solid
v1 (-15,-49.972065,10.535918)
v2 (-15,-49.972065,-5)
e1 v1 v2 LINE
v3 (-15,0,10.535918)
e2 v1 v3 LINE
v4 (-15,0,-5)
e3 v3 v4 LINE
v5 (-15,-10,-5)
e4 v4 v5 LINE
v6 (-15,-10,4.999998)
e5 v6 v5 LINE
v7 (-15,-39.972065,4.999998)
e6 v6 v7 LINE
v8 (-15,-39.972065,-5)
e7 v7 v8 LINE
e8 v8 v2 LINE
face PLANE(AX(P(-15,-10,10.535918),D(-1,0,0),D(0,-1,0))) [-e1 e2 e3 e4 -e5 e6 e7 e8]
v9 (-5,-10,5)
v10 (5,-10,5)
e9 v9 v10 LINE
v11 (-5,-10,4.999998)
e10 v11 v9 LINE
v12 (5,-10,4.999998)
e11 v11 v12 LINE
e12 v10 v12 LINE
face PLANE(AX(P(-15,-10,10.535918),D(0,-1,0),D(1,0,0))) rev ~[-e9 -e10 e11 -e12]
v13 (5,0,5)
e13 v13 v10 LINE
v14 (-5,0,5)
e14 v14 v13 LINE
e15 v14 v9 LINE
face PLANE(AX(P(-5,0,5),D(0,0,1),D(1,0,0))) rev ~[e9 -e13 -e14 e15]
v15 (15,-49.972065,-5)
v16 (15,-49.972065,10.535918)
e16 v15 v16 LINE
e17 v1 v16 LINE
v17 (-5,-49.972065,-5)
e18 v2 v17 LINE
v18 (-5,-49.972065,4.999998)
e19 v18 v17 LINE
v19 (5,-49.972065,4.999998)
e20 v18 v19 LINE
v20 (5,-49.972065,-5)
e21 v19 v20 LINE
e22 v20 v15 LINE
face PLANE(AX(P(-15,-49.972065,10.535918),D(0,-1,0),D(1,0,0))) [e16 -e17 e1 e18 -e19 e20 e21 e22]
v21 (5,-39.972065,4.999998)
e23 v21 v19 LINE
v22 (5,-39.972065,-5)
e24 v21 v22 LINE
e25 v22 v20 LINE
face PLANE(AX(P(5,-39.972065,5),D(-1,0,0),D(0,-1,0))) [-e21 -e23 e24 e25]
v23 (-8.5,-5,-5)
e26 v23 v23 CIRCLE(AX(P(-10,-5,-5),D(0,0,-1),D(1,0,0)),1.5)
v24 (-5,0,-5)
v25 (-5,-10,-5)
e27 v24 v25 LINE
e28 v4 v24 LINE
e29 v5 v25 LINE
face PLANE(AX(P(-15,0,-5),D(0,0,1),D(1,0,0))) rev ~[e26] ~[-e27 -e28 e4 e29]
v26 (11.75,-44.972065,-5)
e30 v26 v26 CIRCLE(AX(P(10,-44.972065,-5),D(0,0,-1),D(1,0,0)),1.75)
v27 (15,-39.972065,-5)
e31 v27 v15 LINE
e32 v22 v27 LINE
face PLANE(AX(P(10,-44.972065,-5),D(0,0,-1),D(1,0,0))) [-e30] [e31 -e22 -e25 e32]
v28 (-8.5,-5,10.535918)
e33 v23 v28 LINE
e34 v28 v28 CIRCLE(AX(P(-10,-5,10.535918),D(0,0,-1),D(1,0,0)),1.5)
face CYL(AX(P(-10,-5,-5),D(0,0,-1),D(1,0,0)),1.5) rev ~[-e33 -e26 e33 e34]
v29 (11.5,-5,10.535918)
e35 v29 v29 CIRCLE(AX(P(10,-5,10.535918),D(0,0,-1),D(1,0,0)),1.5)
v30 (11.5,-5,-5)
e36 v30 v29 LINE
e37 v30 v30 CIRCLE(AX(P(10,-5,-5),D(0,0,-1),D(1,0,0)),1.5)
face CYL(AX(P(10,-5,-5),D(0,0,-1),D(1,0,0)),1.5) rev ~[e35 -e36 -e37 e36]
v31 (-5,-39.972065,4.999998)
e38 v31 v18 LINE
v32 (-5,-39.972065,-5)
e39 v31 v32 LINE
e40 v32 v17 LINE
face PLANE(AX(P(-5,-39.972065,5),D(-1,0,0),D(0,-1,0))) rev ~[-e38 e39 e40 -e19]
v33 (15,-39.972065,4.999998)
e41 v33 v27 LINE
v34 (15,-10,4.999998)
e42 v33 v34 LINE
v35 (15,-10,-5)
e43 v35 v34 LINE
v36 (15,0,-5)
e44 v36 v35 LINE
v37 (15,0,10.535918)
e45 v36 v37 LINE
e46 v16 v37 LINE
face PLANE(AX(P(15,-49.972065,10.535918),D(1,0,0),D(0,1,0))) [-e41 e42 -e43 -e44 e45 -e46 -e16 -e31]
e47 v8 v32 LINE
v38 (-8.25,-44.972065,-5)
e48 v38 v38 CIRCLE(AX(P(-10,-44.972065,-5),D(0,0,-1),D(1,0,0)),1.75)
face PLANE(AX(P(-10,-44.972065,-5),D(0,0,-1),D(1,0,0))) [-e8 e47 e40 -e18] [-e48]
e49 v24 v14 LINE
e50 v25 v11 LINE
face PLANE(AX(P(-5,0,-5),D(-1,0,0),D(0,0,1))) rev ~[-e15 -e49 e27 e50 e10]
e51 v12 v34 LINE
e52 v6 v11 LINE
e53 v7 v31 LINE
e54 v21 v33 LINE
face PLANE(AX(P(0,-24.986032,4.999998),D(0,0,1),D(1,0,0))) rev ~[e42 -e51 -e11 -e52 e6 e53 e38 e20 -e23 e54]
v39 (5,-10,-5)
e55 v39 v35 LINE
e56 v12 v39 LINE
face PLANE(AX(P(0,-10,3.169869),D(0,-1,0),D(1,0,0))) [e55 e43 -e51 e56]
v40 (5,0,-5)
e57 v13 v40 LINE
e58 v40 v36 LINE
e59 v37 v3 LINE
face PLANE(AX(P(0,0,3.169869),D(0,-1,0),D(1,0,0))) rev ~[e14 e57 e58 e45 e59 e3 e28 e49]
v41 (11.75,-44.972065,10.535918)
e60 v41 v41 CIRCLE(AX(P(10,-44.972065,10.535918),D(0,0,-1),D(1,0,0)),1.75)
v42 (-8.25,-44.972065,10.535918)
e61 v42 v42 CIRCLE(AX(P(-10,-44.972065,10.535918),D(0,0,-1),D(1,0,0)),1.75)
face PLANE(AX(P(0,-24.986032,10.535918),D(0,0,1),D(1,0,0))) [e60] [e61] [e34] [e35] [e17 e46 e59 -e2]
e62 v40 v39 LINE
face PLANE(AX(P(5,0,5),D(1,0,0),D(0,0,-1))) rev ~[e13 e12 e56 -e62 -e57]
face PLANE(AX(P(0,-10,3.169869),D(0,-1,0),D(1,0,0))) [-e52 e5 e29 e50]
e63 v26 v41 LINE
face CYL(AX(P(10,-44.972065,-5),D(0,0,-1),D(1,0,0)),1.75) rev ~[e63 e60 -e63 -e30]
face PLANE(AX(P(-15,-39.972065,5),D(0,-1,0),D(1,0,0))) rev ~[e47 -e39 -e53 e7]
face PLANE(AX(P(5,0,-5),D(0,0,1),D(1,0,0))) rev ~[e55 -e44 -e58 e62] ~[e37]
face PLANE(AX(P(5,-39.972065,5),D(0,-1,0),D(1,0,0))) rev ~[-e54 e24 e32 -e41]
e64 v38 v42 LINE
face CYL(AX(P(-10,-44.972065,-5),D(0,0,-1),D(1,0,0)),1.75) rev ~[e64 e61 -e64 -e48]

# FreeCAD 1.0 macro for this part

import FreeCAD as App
import Part
import Sketcher

V = App.Vector


def add_polygon(sketch, points):
    """Adds a closed chain of lines whose ends are joined by coincident constraints."""
    first, n = sketch.GeometryCount, len(points)
    for a, b in zip(points, points[1:] + points[:1]):
        sketch.addGeometry(Part.LineSegment(App.Vector(*a, 0), App.Vector(*b, 0)), False)
    for i in range(n):
        sketch.addConstraint(Sketcher.Constraint("Coincident", first + i, 2, first + (i + 1) % n, 1))

doc = App.newDocument("Part")
params = doc.addObject("Spreadsheet::Sheet", "Params")
for row, (alias, value) in enumerate([
    ("sketch1_width", "10 mm"),
    ("pad1_length", "10 mm"),
    ("sketch2_diameter", "3 mm"),
    ("pocket1_length", "16 mm"),
    ("sketch3_diameter", "3 mm"),
    ("sketch3_width", "30 mm"),
    ("pad2_length", "5.53592 mm"),
    ("sketch4_width", "10 mm"),
    ("pad3_length", "10 mm"),
    ("sketch5_diameter", "3.5 mm"),
    ("pocket2_length", "25 mm"),
], start=1):
    params.set(f"A{row}", alias)
    params.set(f"B{row}", "=" + value)
    params.setAlias(f"B{row}", alias)

body = doc.addObject("PartDesign::Body", "Body")

# Sketch on XZ plane
sketch1 = body.newObject("Sketcher::SketchObject", "Sketch")
sketch1.AttachmentSupport = (doc.getObject("XZ_Plane"), [""])
sketch1.MapMode = "FlatFace"
add_polygon(sketch1, [(-5, 5), (5, 5), (5, -5), (15, -5), (15, 11), (-15, 11), (-15, -5), (-5, -5)])  # lines 0-7
sketch1.addConstraint(Sketcher.Constraint("Horizontal", 0))
sketch1.addConstraint(Sketcher.Constraint("Vertical", 1))
sketch1.addConstraint(Sketcher.Constraint("Horizontal", 2))
sketch1.addConstraint(Sketcher.Constraint("Vertical", 3))
sketch1.addConstraint(Sketcher.Constraint("Horizontal", 4))
sketch1.addConstraint(Sketcher.Constraint("Vertical", 5))
sketch1.addConstraint(Sketcher.Constraint("Horizontal", 6))
sketch1.addConstraint(Sketcher.Constraint("Vertical", 7))
sketch1.addConstraint(Sketcher.Constraint("Symmetric", 0, 2, 6, 2, -1, 1))
sketch1.addConstraint(Sketcher.Constraint("Symmetric", 2, 2, 5, 2, -2))
sketch1.addConstraint(Sketcher.Constraint("Equal", 0, 2))
sketch1.addConstraint(Sketcher.Constraint("Equal", 6, 1))
sketch1.addConstraint(Sketcher.Constraint("DistanceX", 0, 1, 0, 2, 10.0))
sketch1.addConstraint(Sketcher.Constraint("DistanceY", 3, 1, 3, 2, 15.535918))
sketch1.setExpression("Constraints[20]", "Params.sketch1_width")
pad1 = body.newObject("PartDesign::Pad", "Pad")
pad1.Profile = sketch1
pad1.setExpression("Length", "Params.pad1_length")

# Sketch on XY plane
sketch2 = body.newObject("Sketcher::SketchObject", "Sketch001")
sketch2.AttachmentSupport = (doc.getObject("XY_Plane"), [""])
sketch2.MapMode = "FlatFace"
sketch2.AttachmentOffset = App.Placement(V(0, 0, -5), App.Rotation())
sketch2.addGeometry(Part.Circle(V(10, -5, 0), V(0, 0, 1), 1.5), False)
sketch2.addGeometry(Part.Circle(V(-10, -5, 0), V(0, 0, 1), 1.5), False)
sketch2.addConstraint(Sketcher.Constraint("Equal", 0, 1))
sketch2.addConstraint(Sketcher.Constraint("Symmetric", 0, 3, 1, 3, -2))
sketch2.addConstraint(Sketcher.Constraint("Diameter", 0, 3.0))
sketch2.addConstraint(Sketcher.Constraint("DistanceX", -1, 1, 0, 3, 10.0))
sketch2.addConstraint(Sketcher.Constraint("DistanceY", 0, 3, -1, 1, 5.0))
sketch2.setExpression("Constraints[2]", "Params.sketch2_diameter")
pocket1 = body.newObject("PartDesign::Pocket", "Pocket")
pocket1.Profile = sketch2
pocket1.setExpression("Length", "Params.pocket1_length")
pocket1.Reversed = True

# Sketch on XY plane
sketch3 = body.newObject("Sketcher::SketchObject", "Sketch002")
sketch3.AttachmentSupport = (doc.getObject("XY_Plane"), [""])
sketch3.MapMode = "FlatFace"
sketch3.AttachmentOffset = App.Placement(V(0, 0, 10.535918), App.Rotation())
add_polygon(sketch3, [(-15, -10), (-15, -50), (15, -50), (15, -10)])  # lines 0-3
sketch3.addGeometry(Part.Circle(V(-10, -45, 0), V(0, 0, 1), 1.5), False)  # 4
sketch3.addGeometry(Part.Circle(V(10, -45, 0), V(0, 0, 1), 1.5), False)  # 5
sketch3.addConstraint(Sketcher.Constraint("Vertical", 0))
sketch3.addConstraint(Sketcher.Constraint("Horizontal", 1))
sketch3.addConstraint(Sketcher.Constraint("Vertical", 2))
sketch3.addConstraint(Sketcher.Constraint("Horizontal", 3))
sketch3.addConstraint(Sketcher.Constraint("Equal", 4, 5))
sketch3.addConstraint(Sketcher.Constraint("Symmetric", 4, 3, 5, 3, -2))
sketch3.addConstraint(Sketcher.Constraint("Diameter", 4, 3.0))
sketch3.addConstraint(Sketcher.Constraint("DistanceX", 1, 1, 1, 2, 30.0))
sketch3.addConstraint(Sketcher.Constraint("DistanceX", 4, 3, -1, 1, 10.0))
sketch3.addConstraint(Sketcher.Constraint("DistanceX", 0, 2, -1, 1, 15.0))
sketch3.addConstraint(Sketcher.Constraint("DistanceY", 2, 2, -1, 1, 10.0))
sketch3.addConstraint(Sketcher.Constraint("DistanceY", 0, 2, 4, 3, 5.0))
sketch3.addConstraint(Sketcher.Constraint("DistanceY", 0, 2, 0, 1, 39.972065))
sketch3.setExpression("Constraints[10]", "Params.sketch3_diameter")
sketch3.setExpression("Constraints[11]", "Params.sketch3_width")
pad2 = body.newObject("PartDesign::Pad", "Pad001")
pad2.Profile = sketch3
pad2.setExpression("Length", "Params.pad2_length")
pad2.Reversed = True

# Sketch on XY plane
sketch4 = body.newObject("Sketcher::SketchObject", "Sketch003")
sketch4.AttachmentSupport = (doc.getObject("XY_Plane"), [""])
sketch4.MapMode = "FlatFace"
sketch4.AttachmentOffset = App.Placement(V(0, 0, 5), App.Rotation())
add_polygon(sketch4, [(5, -50), (5, -40), (15, -40), (15, -50)])  # lines 0-3
add_polygon(sketch4, [(-15, -50), (-15, -40), (-5, -40), (-5, -50)])  # lines 4-7
sketch4.addConstraint(Sketcher.Constraint("Vertical", 0))
sketch4.addConstraint(Sketcher.Constraint("Horizontal", 1))
sketch4.addConstraint(Sketcher.Constraint("Vertical", 2))
sketch4.addConstraint(Sketcher.Constraint("Horizontal", 3))
sketch4.addConstraint(Sketcher.Constraint("Vertical", 4))
sketch4.addConstraint(Sketcher.Constraint("Horizontal", 5))
sketch4.addConstraint(Sketcher.Constraint("Vertical", 6))
sketch4.addConstraint(Sketcher.Constraint("Horizontal", 7))
sketch4.addConstraint(Sketcher.Constraint("Symmetric", 1, 2, 4, 2, -2))
sketch4.addConstraint(Sketcher.Constraint("Symmetric", 3, 2, 6, 2, -2))
sketch4.addConstraint(Sketcher.Constraint("Equal", 7, 0))
sketch4.addConstraint(Sketcher.Constraint("DistanceX", 1, 1, 1, 2, 10.0))
sketch4.addConstraint(Sketcher.Constraint("DistanceX", -1, 1, 0, 2, 5.0))
sketch4.addConstraint(Sketcher.Constraint("DistanceY", 0, 2, -1, 1, 39.972065))
sketch4.setExpression("Constraints[19]", "Params.sketch4_width")
pad3 = body.newObject("PartDesign::Pad", "Pad002")
pad3.Profile = sketch4
pad3.setExpression("Length", "Params.pad3_length")
pad3.Reversed = True

# Sketch on XY plane
sketch5 = body.newObject("Sketcher::SketchObject", "Sketch004")
sketch5.AttachmentSupport = (doc.getObject("XY_Plane"), [""])
sketch5.MapMode = "FlatFace"
sketch5.AttachmentOffset = App.Placement(V(0, 0, -5), App.Rotation())
sketch5.addGeometry(Part.Circle(V(-10, -45, 0), V(0, 0, 1), 1.8), False)
sketch5.addGeometry(Part.Circle(V(10, -45, 0), V(0, 0, 1), 1.8), False)
sketch5.addConstraint(Sketcher.Constraint("Equal", 0, 1))
sketch5.addConstraint(Sketcher.Constraint("Symmetric", 0, 3, 1, 3, -2))
sketch5.addConstraint(Sketcher.Constraint("Diameter", 0, 3.5))
sketch5.addConstraint(Sketcher.Constraint("DistanceX", 0, 3, -1, 1, 10.0))
sketch5.addConstraint(Sketcher.Constraint("DistanceY", 0, 3, -1, 1, 44.972065))
sketch5.setExpression("Constraints[2]", "Params.sketch5_diameter")
pocket2 = body.newObject("PartDesign::Pocket", "Pocket001")
pocket2.Profile = sketch5
pocket2.setExpression("Length", "Params.pocket2_length")
pocket2.Reversed = True

doc.recompute()
